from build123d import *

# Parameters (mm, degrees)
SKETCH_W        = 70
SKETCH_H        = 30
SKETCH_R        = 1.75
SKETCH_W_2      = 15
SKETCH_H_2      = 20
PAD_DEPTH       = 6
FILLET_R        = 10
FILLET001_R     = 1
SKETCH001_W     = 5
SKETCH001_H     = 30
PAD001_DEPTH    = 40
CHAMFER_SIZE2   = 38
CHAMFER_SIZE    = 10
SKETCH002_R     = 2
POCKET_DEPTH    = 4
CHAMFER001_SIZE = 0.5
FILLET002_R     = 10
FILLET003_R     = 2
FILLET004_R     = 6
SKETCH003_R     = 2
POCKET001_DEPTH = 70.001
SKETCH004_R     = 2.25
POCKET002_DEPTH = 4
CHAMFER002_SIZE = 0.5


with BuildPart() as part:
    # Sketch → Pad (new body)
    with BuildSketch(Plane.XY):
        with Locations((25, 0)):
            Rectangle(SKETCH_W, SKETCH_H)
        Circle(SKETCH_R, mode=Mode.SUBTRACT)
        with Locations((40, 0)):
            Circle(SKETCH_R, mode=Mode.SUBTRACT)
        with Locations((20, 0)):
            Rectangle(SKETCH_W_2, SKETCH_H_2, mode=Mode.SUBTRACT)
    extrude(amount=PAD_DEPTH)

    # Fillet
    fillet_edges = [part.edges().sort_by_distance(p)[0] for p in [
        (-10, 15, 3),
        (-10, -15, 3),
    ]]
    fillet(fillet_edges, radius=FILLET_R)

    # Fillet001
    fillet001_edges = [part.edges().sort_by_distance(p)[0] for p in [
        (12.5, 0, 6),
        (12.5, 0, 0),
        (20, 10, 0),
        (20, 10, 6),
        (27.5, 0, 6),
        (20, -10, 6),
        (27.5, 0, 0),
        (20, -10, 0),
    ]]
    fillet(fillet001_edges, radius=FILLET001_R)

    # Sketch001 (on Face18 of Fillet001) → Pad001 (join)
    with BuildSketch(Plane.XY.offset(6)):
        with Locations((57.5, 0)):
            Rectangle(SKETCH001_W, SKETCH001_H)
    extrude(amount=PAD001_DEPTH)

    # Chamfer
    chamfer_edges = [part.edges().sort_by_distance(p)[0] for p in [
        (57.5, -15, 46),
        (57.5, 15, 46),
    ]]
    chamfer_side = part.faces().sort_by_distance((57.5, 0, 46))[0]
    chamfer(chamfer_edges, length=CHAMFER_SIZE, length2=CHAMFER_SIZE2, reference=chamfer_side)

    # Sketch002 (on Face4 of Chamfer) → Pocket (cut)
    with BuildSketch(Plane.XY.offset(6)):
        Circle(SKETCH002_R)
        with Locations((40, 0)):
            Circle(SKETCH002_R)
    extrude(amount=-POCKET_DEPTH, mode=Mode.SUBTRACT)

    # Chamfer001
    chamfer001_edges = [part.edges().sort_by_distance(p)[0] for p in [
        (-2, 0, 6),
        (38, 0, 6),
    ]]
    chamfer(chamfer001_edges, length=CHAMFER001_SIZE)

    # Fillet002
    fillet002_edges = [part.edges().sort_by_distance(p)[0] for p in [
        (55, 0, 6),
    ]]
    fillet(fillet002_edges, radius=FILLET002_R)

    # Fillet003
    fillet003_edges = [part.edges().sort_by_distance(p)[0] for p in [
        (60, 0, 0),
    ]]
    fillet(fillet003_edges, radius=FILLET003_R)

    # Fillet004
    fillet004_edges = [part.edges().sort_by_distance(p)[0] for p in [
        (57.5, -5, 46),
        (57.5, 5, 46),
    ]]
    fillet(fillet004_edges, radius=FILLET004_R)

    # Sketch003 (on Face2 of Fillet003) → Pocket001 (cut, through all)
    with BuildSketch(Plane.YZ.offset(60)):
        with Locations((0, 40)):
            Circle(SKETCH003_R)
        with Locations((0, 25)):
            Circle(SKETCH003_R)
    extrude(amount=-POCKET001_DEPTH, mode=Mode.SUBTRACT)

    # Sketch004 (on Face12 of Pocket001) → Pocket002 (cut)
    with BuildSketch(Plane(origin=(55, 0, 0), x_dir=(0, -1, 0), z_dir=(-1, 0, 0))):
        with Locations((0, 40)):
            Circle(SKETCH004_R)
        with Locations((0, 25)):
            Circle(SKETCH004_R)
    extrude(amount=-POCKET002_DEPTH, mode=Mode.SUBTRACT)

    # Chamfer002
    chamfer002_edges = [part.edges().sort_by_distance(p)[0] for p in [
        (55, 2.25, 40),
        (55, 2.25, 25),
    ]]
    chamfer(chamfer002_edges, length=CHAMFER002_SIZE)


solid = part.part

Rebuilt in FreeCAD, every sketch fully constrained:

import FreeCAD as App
import Part
import Sketcher
Q = App.Units.Quantity


def edges_at(feature, points):
    """Names of the edges that pass closest to the given points."""
    edges = feature.Shape.Edges
    near = lambda p: min(range(len(edges)), key=lambda i: edges[i].distToShape(Part.Vertex(*p))[0])
    return sorted({f"Edge{near(p) + 1}" for p in points})


def add_polygon(sketch, points):
    """Adds a closed chain of lines whose ends are joined by coincident constraints."""
    first, n = sketch.GeometryCount, len(points)
    for a, b in zip(points, points[1:] + points[:1]):
        sketch.addGeometry(Part.LineSegment(App.Vector(*a, 0), App.Vector(*b, 0)), False)
    for i in range(n):
        sketch.addConstraint(Sketcher.Constraint("Coincident", first + i, 2, first + (i + 1) % n, 1))

doc = App.newDocument("Part")
params = doc.addObject("Spreadsheet::Sheet", "Params")
for row, (alias, value) in enumerate([
    ("sketch1_diameter", "3.5 mm"),
    ("sketch1_width", "70 mm"),
    ("sketch1_width2", "15 mm"),
    ("sketch1_height", "30 mm"),
    ("sketch1_height2", "20 mm"),
    ("pad1_length", "6 mm"),
    ("fillet_radius", "10 mm"),
    ("fillet2_radius", "1 mm"),
    ("sketch2_width", "5 mm"),
    ("sketch2_height", "30 mm"),
    ("pad2_length", "40 mm"),
    ("chamfer_size", "10 mm"),
    ("chamfer_size2", "38 mm"),
    ("sketch3_diameter", "4 mm"),
    ("pocket1_length", "4 mm"),
    ("chamfer2_size", "0.5 mm"),
    ("fillet3_radius", "10 mm"),
    ("fillet4_radius", "2 mm"),
    ("fillet5_radius", "6 mm"),
    ("sketch4_diameter", "4 mm"),
    ("sketch5_diameter", "4.5 mm"),
    ("pocket3_length", "4 mm"),
    ("chamfer3_size", "0.5 mm"),
], start=1):
    params.set(f"A{row}", alias)
    params.set(f"B{row}", "=" + value)
    params.setAlias(f"B{row}", alias)

body = doc.addObject("PartDesign::Body", "Body")

# Sketch on XY plane
sketch1 = body.newObject("Sketcher::SketchObject", "Sketch")
sketch1.AttachmentSupport = (doc.getObject("XY_Plane"), [""])
sketch1.MapMode = "FlatFace"
add_polygon(sketch1, [(-10, 15), (-10, -15), (60, -15), (60, 15)])  # lines 0-3
sketch1.addGeometry(Part.Circle(App.Vector(0, 0, 0), App.Vector(0, 0, 1), 1.8), False)  # 4
add_polygon(sketch1, [(27.5, -10), (12.5, -10), (12.5, 10), (27.5, 10)])  # lines 5-8
sketch1.addGeometry(Part.Circle(App.Vector(40, 0, 0), App.Vector(0, 0, 1), 1.8), False)  # 9
sketch1.addConstraint(Sketcher.Constraint("Vertical", 0))
sketch1.addConstraint(Sketcher.Constraint("Horizontal", 1))
sketch1.addConstraint(Sketcher.Constraint("Vertical", 2))
sketch1.addConstraint(Sketcher.Constraint("Horizontal", 3))
sketch1.addConstraint(Sketcher.Constraint("Horizontal", 5))
sketch1.addConstraint(Sketcher.Constraint("Vertical", 6))
sketch1.addConstraint(Sketcher.Constraint("Horizontal", 7))
sketch1.addConstraint(Sketcher.Constraint("Vertical", 8))
sketch1.addConstraint(Sketcher.Constraint("Coincident", 4, 3, -1, 1))
sketch1.addConstraint(Sketcher.Constraint("Equal", 4, 9))
sketch1.addConstraint(Sketcher.Constraint("PointOnObject", 9, 3, -1))
sketch1.addConstraint(Sketcher.Constraint("Diameter", 4, Q("3.5 mm")))
sketch1.addConstraint(Sketcher.Constraint("DistanceX", 1, 1, 1, 2, Q("70 mm")))
sketch1.addConstraint(Sketcher.Constraint("DistanceX", 5, 2, 5, 1, Q("15 mm")))
sketch1.addConstraint(Sketcher.Constraint("DistanceY", 0, 2, 0, 1, Q("30 mm")))
sketch1.addConstraint(Sketcher.Constraint("DistanceY", 6, 1, 6, 2, Q("20 mm")))
sketch1.addConstraint(Sketcher.Constraint("DistanceX", -1, 1, 9, 3, Q("40 mm")))
sketch1.addConstraint(Sketcher.Constraint("DistanceX", 0, 2, -1, 1, Q("10 mm")))
sketch1.addConstraint(Sketcher.Constraint("DistanceY", 0, 2, -1, 1, Q("15 mm")))
sketch1.addConstraint(Sketcher.Constraint("DistanceY", 5, 2, -1, 1, Q("10 mm")))
sketch1.addConstraint(Sketcher.Constraint("DistanceX", -1, 1, 5, 2, Q("12.5 mm")))
sketch1.setExpression("Constraints[19]", "Params.sketch1_diameter")
sketch1.setExpression("Constraints[20]", "Params.sketch1_width")
sketch1.setExpression("Constraints[21]", "Params.sketch1_width2")
sketch1.setExpression("Constraints[22]", "Params.sketch1_height")
sketch1.setExpression("Constraints[23]", "Params.sketch1_height2")
pad1 = body.newObject("PartDesign::Pad", "Pad")
pad1.Profile = sketch1
pad1.setExpression("Length", "Params.pad1_length")
doc.recompute()

fillet = body.newObject("PartDesign::Fillet", "Fillet")
fillet.Base = (pad1, edges_at(pad1, [(-10, 15, 3), (-10, -15, 3)]))
fillet.setExpression("Radius", "Params.fillet_radius")
doc.recompute()

fillet2 = body.newObject("PartDesign::Fillet", "Fillet001")
fillet2.Base = (fillet, edges_at(fillet, [
    (12.5, 0, 6),
    (12.5, 0, 0),
    (20, 10, 0),
    (20, 10, 6),
    (27.5, 0, 6),
    (20, -10, 6),
    (27.5, 0, 0),
    (20, -10, 0),
]))
fillet2.setExpression("Radius", "Params.fillet2_radius")

# Sketch on XY plane
sketch2 = body.newObject("Sketcher::SketchObject", "Sketch001")
sketch2.AttachmentSupport = (doc.getObject("XY_Plane"), [""])
sketch2.MapMode = "FlatFace"
sketch2.AttachmentOffset = App.Placement(App.Vector(0, 0, 6), App.Rotation())
add_polygon(sketch2, [(55, 15), (55, -15), (60, -15), (60, 15)])  # lines 0-3
sketch2.addConstraint(Sketcher.Constraint("Vertical", 0))
sketch2.addConstraint(Sketcher.Constraint("Horizontal", 1))
sketch2.addConstraint(Sketcher.Constraint("Vertical", 2))
sketch2.addConstraint(Sketcher.Constraint("Horizontal", 3))
sketch2.addConstraint(Sketcher.Constraint("DistanceX", 1, 1, 1, 2, Q("5 mm")))
sketch2.addConstraint(Sketcher.Constraint("DistanceY", 0, 2, 0, 1, Q("30 mm")))
sketch2.addConstraint(Sketcher.Constraint("DistanceX", -1, 1, 0, 2, Q("55 mm")))
sketch2.addConstraint(Sketcher.Constraint("DistanceY", 0, 2, -1, 1, Q("15 mm")))
sketch2.setExpression("Constraints[8]", "Params.sketch2_width")
sketch2.setExpression("Constraints[9]", "Params.sketch2_height")
pad2 = body.newObject("PartDesign::Pad", "Pad001")
pad2.Profile = sketch2
pad2.setExpression("Length", "Params.pad2_length")
doc.recompute()

chamfer = body.newObject("PartDesign::Chamfer", "Chamfer")
chamfer.Base = (pad2, edges_at(pad2, [(57.5, -15, 46), (57.5, 15, 46)]))
chamfer.ChamferType = "Two distances"
chamfer.setExpression("Size", "Params.chamfer_size")
chamfer.setExpression("Size2", "Params.chamfer_size2")

# Sketch on XY plane
sketch3 = body.newObject("Sketcher::SketchObject", "Sketch002")
sketch3.AttachmentSupport = (doc.getObject("XY_Plane"), [""])
sketch3.MapMode = "FlatFace"
sketch3.AttachmentOffset = App.Placement(App.Vector(0, 0, 6), App.Rotation())
sketch3.addGeometry(Part.Circle(App.Vector(0, 0, 0), App.Vector(0, 0, 1), 2), False)
sketch3.addGeometry(Part.Circle(App.Vector(40, 0, 0), App.Vector(0, 0, 1), 2), False)
sketch3.addConstraint(Sketcher.Constraint("Coincident", 0, 3, -1, 1))
sketch3.addConstraint(Sketcher.Constraint("Equal", 0, 1))
sketch3.addConstraint(Sketcher.Constraint("PointOnObject", 1, 3, -1))
sketch3.addConstraint(Sketcher.Constraint("Diameter", 0, Q("4 mm")))
sketch3.addConstraint(Sketcher.Constraint("DistanceX", -1, 1, 1, 3, Q("40 mm")))
sketch3.setExpression("Constraints[3]", "Params.sketch3_diameter")
pocket1 = body.newObject("PartDesign::Pocket", "Pocket")
pocket1.Profile = sketch3
pocket1.setExpression("Length", "Params.pocket1_length")
doc.recompute()

chamfer2 = body.newObject("PartDesign::Chamfer", "Chamfer001")
chamfer2.Base = (pocket1, edges_at(pocket1, [(-2, 0, 6), (38, 0, 6)]))
chamfer2.setExpression("Size", "Params.chamfer2_size")
doc.recompute()

fillet3 = body.newObject("PartDesign::Fillet", "Fillet002")
fillet3.Base = (chamfer2, edges_at(chamfer2, [(55, 0, 6)]))
fillet3.setExpression("Radius", "Params.fillet3_radius")
doc.recompute()

fillet4 = body.newObject("PartDesign::Fillet", "Fillet003")
fillet4.Base = (fillet3, edges_at(fillet3, [(60, 0, 0)]))
fillet4.setExpression("Radius", "Params.fillet4_radius")
doc.recompute()

fillet5 = body.newObject("PartDesign::Fillet", "Fillet004")
fillet5.Base = (fillet4, edges_at(fillet4, [(57.5, -5, 46), (57.5, 5, 46)]))
fillet5.setExpression("Radius", "Params.fillet5_radius")

# Sketch on YZ plane
sketch4 = body.newObject("Sketcher::SketchObject", "Sketch003")
sketch4.AttachmentSupport = (doc.getObject("YZ_Plane"), [""])
sketch4.MapMode = "FlatFace"
sketch4.AttachmentOffset = App.Placement(App.Vector(0, 0, 60), App.Rotation())
sketch4.addGeometry(Part.Circle(App.Vector(0, 40, 0), App.Vector(0, 0, 1), 2), False)
sketch4.addGeometry(Part.Circle(App.Vector(0, 25, 0), App.Vector(0, 0, 1), 2), False)
sketch4.addConstraint(Sketcher.Constraint("Equal", 0, 1))
sketch4.addConstraint(Sketcher.Constraint("PointOnObject", 0, 3, -2))
sketch4.addConstraint(Sketcher.Constraint("PointOnObject", 1, 3, -2))
sketch4.addConstraint(Sketcher.Constraint("Diameter", 0, Q("4 mm")))
sketch4.addConstraint(Sketcher.Constraint("DistanceY", -1, 1, 0, 3, Q("40 mm")))
sketch4.addConstraint(Sketcher.Constraint("DistanceY", -1, 1, 1, 3, Q("25 mm")))
sketch4.setExpression("Constraints[3]", "Params.sketch4_diameter")
pocket2 = body.newObject("PartDesign::Pocket", "Pocket001")
pocket2.Profile = sketch4
pocket2.Type = "ThroughAll"

# Sketch on YZ plane
sketch5 = body.newObject("Sketcher::SketchObject", "Sketch004")
sketch5.AttachmentSupport = (doc.getObject("YZ_Plane"), [""])
sketch5.MapMode = "FlatFace"
sketch5.AttachmentOffset = App.Placement(App.Vector(0, 0, 55), App.Rotation())
sketch5.addGeometry(Part.Circle(App.Vector(0, 40, 0), App.Vector(0, 0, 1), 2.2), False)
sketch5.addGeometry(Part.Circle(App.Vector(0, 25, 0), App.Vector(0, 0, 1), 2.2), False)
sketch5.addConstraint(Sketcher.Constraint("Equal", 0, 1))
sketch5.addConstraint(Sketcher.Constraint("PointOnObject", 0, 3, -2))
sketch5.addConstraint(Sketcher.Constraint("PointOnObject", 1, 3, -2))
sketch5.addConstraint(Sketcher.Constraint("Diameter", 0, Q("4.5 mm")))
sketch5.addConstraint(Sketcher.Constraint("DistanceY", -1, 1, 0, 3, Q("40 mm")))
sketch5.addConstraint(Sketcher.Constraint("DistanceY", -1, 1, 1, 3, Q("25 mm")))
sketch5.setExpression("Constraints[3]", "Params.sketch5_diameter")
pocket3 = body.newObject("PartDesign::Pocket", "Pocket002")
pocket3.Profile = sketch5
pocket3.setExpression("Length", "Params.pocket3_length")
pocket3.Reversed = True
doc.recompute()

chamfer3 = body.newObject("PartDesign::Chamfer", "Chamfer002")
chamfer3.Base = (pocket3, edges_at(pocket3, [(55, 2.25, 40), (55, 2.25, 25)]))
chamfer3.setExpression("Size", "Params.chamfer3_size")

doc.recompute()
